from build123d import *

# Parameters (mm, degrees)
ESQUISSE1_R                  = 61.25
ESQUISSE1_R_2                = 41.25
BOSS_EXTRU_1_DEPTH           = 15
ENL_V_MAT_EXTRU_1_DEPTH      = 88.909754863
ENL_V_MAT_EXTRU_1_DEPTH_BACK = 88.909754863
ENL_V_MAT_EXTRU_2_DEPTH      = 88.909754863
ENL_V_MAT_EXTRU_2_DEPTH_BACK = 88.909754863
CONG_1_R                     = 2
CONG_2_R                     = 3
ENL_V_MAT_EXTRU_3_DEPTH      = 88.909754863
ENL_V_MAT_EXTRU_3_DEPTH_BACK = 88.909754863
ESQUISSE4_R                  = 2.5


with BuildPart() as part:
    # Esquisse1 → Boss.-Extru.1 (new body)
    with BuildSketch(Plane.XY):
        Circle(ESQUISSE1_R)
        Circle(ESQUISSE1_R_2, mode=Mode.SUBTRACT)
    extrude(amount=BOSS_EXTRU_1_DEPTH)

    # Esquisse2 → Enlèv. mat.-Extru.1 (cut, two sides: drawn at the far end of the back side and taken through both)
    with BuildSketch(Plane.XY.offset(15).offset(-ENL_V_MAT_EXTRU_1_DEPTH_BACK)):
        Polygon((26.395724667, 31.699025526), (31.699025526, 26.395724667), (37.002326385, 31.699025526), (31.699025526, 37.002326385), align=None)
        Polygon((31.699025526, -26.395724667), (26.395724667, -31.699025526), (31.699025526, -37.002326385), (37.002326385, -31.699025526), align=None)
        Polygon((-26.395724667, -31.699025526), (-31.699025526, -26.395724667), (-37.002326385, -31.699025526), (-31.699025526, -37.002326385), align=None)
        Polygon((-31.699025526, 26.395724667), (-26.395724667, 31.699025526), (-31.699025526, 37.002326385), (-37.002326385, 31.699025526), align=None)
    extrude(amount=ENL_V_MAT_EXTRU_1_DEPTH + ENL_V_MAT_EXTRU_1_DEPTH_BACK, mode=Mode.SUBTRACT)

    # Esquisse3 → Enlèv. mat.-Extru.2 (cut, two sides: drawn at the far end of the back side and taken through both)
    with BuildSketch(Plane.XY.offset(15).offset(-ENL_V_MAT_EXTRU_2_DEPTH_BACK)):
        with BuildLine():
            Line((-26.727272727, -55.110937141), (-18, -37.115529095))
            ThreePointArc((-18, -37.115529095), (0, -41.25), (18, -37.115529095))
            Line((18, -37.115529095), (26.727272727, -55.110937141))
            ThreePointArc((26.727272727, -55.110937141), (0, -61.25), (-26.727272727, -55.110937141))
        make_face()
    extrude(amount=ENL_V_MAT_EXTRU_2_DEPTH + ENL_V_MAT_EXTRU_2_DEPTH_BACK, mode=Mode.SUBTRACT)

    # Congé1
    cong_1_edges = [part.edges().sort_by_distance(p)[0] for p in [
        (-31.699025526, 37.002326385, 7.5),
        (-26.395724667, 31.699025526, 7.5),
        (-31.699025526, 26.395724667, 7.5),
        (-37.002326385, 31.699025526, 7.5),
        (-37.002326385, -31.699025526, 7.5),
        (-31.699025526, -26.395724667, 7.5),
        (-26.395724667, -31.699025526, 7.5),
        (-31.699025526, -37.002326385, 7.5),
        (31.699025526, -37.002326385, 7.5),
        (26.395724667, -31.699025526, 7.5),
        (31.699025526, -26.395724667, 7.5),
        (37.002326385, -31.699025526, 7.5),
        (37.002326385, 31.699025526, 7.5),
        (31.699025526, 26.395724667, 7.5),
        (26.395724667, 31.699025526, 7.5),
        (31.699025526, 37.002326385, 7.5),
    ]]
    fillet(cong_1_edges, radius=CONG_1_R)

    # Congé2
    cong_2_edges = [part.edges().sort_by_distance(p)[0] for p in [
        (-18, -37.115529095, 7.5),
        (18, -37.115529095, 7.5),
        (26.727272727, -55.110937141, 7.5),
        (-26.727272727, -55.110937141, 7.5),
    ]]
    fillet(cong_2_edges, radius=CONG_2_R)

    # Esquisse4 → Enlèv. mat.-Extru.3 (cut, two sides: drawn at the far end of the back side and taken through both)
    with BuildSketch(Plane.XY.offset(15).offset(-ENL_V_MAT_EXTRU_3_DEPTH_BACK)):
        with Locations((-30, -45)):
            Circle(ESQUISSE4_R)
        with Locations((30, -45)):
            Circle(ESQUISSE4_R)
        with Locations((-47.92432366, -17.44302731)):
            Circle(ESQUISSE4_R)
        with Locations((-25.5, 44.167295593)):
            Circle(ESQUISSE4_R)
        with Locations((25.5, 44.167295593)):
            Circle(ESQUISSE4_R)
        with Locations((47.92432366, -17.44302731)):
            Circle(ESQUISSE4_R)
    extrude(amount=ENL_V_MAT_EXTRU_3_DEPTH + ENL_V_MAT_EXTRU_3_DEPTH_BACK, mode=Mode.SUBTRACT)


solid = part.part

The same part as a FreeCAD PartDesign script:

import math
import FreeCAD as App
import Part
import Sketcher
from FreeCAD import Vector


def edges_at(feature, points):
    """Names of the edges that pass closest to the given points."""
    edges = feature.Shape.Edges
    near = lambda p: min(range(len(edges)), key=lambda i: edges[i].distToShape(Part.Vertex(*p))[0])
    return sorted({f"Edge{near(p) + 1}" for p in points})

doc = App.newDocument("Part")
body = doc.addObject("PartDesign::Body", "Body")

# Sketch on XY plane
sketch1 = body.newObject("Sketcher::SketchObject", "Sketch")
sketch1.AttachmentSupport = (doc.getObject("XY_Plane"), [""])
sketch1.MapMode = "FlatFace"
sketch1.addGeometry([
    Part.Circle(Vector(0, 0, 0), Vector(0, 0, 1), 61),
    Part.Circle(Vector(0, 0, 0), Vector(0, 0, 1), 41),
], False)
sketch1.addConstraint([
    Sketcher.Constraint("Coincident", 0, 3, -1, 1),
    Sketcher.Constraint("Coincident", 1, 3, -1, 1),
    Sketcher.Constraint("Diameter", 0, 122.5),
    Sketcher.Constraint("Diameter", 1, 82.5),
])
pad1 = body.newObject("PartDesign::Pad", "Pad")
pad1.Profile = sketch1
pad1.Length = 15

# Sketch on XY plane
sketch2 = body.newObject("Sketcher::SketchObject", "Sketch001")
sketch2.AttachmentSupport = (doc.getObject("XY_Plane"), [""])
sketch2.MapMode = "FlatFace"
sketch2.AttachmentOffset = App.Placement(Vector(0, 0, 15), App.Rotation())
sketch2.addGeometry([
    Part.LineSegment(Vector(26, 32, 0), Vector(32, 26, 0)),  # 0
    Part.LineSegment(Vector(32, 26, 0), Vector(37, 32, 0)),  # 1
    Part.LineSegment(Vector(37, 32, 0), Vector(32, 37, 0)),  # 2
    Part.LineSegment(Vector(32, 37, 0), Vector(26, 32, 0)),  # 3
    Part.LineSegment(Vector(32, -26, 0), Vector(26, -32, 0)),  # 4
    Part.LineSegment(Vector(26, -32, 0), Vector(32, -37, 0)),  # 5
    Part.LineSegment(Vector(32, -37, 0), Vector(37, -32, 0)),  # 6
    Part.LineSegment(Vector(37, -32, 0), Vector(32, -26, 0)),  # 7
    Part.LineSegment(Vector(-26, -32, 0), Vector(-32, -26, 0)),  # 8
    Part.LineSegment(Vector(-32, -26, 0), Vector(-37, -32, 0)),  # 9
    Part.LineSegment(Vector(-37, -32, 0), Vector(-32, -37, 0)),  # 10
    Part.LineSegment(Vector(-32, -37, 0), Vector(-26, -32, 0)),  # 11
    Part.LineSegment(Vector(-32, 26, 0), Vector(-26, 32, 0)),  # 12
    Part.LineSegment(Vector(-26, 32, 0), Vector(-32, 37, 0)),  # 13
    Part.LineSegment(Vector(-32, 37, 0), Vector(-37, 32, 0)),  # 14
    Part.LineSegment(Vector(-37, 32, 0), Vector(-32, 26, 0)),  # 15
], False)
sketch2.addConstraint([
    Sketcher.Constraint("Coincident", 0, 2, 1, 1),
    Sketcher.Constraint("Coincident", 1, 2, 2, 1),
    Sketcher.Constraint("Coincident", 2, 2, 3, 1),
    Sketcher.Constraint("Coincident", 3, 2, 0, 1),
    Sketcher.Constraint("Coincident", 4, 2, 5, 1),
    Sketcher.Constraint("Coincident", 5, 2, 6, 1),
    Sketcher.Constraint("Coincident", 6, 2, 7, 1),
    Sketcher.Constraint("Coincident", 7, 2, 4, 1),
    Sketcher.Constraint("Coincident", 8, 2, 9, 1),
    Sketcher.Constraint("Coincident", 9, 2, 10, 1),
    Sketcher.Constraint("Coincident", 10, 2, 11, 1),
    Sketcher.Constraint("Coincident", 11, 2, 8, 1),
    Sketcher.Constraint("Coincident", 12, 2, 13, 1),
    Sketcher.Constraint("Coincident", 13, 2, 14, 1),
    Sketcher.Constraint("Coincident", 14, 2, 15, 1),
    Sketcher.Constraint("Coincident", 15, 2, 12, 1),
    Sketcher.Constraint("Symmetric", 0, 2, 8, 2, -1, 1),
    Sketcher.Constraint("Symmetric", 1, 2, 9, 2, -1, 1),
    Sketcher.Constraint("Symmetric", 2, 2, 10, 2, -1, 1),
    Sketcher.Constraint("Symmetric", 3, 2, 11, 2, -1, 1),
    Sketcher.Constraint("Symmetric", 4, 2, 12, 2, -1, 1),
    Sketcher.Constraint("Symmetric", 5, 2, 13, 2, -1, 1),
    Sketcher.Constraint("Symmetric", 6, 2, 14, 2, -1, 1),
    Sketcher.Constraint("Symmetric", 7, 2, 15, 2, -1, 1),
    Sketcher.Constraint("Symmetric", 7, 2, 8, 2, -2),
    Sketcher.Constraint("Symmetric", 6, 2, 9, 2, -2),
    Sketcher.Constraint("Symmetric", 5, 2, 10, 2, -2),
    Sketcher.Constraint("Symmetric", 4, 2, 11, 2, -2),
    Sketcher.Constraint("Perpendicular", 0, 1),
    Sketcher.Constraint("Perpendicular", 1, 2),
    Sketcher.Constraint("Perpendicular", 2, 3),
    Sketcher.Constraint("Parallel", 3, 4),
    Sketcher.Constraint("Horizontal", 1, 2, 3, 2),
    Sketcher.Constraint("Distance", 0, 7.5),
    Sketcher.Constraint("DistanceY", 4, 2, 0, 2, 58.09475),
    Sketcher.Constraint("DistanceX", 8, 2, 4, 2, 58.09475),
])
pocket1 = body.newObject("PartDesign::Pocket", "Pocket")
pocket1.Profile = sketch2
pocket1.Type = "ThroughAll"
pocket1.Midplane = True

# Sketch on XY plane
sketch3 = body.newObject("Sketcher::SketchObject", "Sketch002")
sketch3.AttachmentSupport = (doc.getObject("XY_Plane"), [""])
sketch3.MapMode = "FlatFace"
sketch3.AttachmentOffset = App.Placement(Vector(0, 0, 15), App.Rotation())
sketch3.addGeometry([
    Part.LineSegment(Vector(-18, -37, 0), Vector(-27, -55, 0)),
    Part.ArcOfCircle(Part.Circle(Vector(0, 0, 0), Vector(0, 0, 1), 61), math.radians(-116), math.radians(-64)),
    Part.LineSegment(Vector(27, -55, 0), Vector(18, -37, 0)),
    Part.ArcOfCircle(Part.Circle(Vector(0, 0, 0), Vector(0, 0, 1), 41), math.radians(-116), math.radians(-64)),
], False)
sketch3.addConstraint([
    Sketcher.Constraint("Coincident", 0, 2, 1, 1),
    Sketcher.Constraint("Coincident", 1, 2, 2, 1),
    Sketcher.Constraint("Coincident", 2, 2, 3, 2),
    Sketcher.Constraint("Coincident", 3, 1, 0, 1),
    Sketcher.Constraint("Coincident", 1, 3, -1, 1),
    Sketcher.Constraint("Coincident", 3, 3, -1, 1),
    Sketcher.Constraint("Horizontal", 0, 2, 1, 2),
    Sketcher.Constraint("Horizontal", 2, 2, 3, 1),
    Sketcher.Constraint("Radius", 1, 61.25),
    Sketcher.Constraint("Radius", 3, 41.25),
    Sketcher.Constraint("DistanceX", -1, 1, 2, 2, 18.0),
    Sketcher.Constraint("DistanceY", 1, 2, 2, 2, 17.995408),
])
pocket2 = body.newObject("PartDesign::Pocket", "Pocket001")
pocket2.Profile = sketch3
pocket2.Type = "ThroughAll"
pocket2.Midplane = True
doc.recompute()

fillet = body.newObject("PartDesign::Fillet", "Fillet")
fillet.Base = (pocket2, edges_at(pocket2, [
    (-31.699, 37.002, 7.5),
    (-26.396, 31.699, 7.5),
    (-31.699, 26.396, 7.5),
    (-37.002, 31.699, 7.5),
    (-37.002, -31.699, 7.5),
    (-31.699, -26.396, 7.5),
    (-26.396, -31.699, 7.5),
    (-31.699, -37.002, 7.5),
    (31.699, -37.002, 7.5),
    (26.396, -31.699, 7.5),
    (31.699, -26.396, 7.5),
    (37.002, -31.699, 7.5),
    (37.002, 31.699, 7.5),
    (31.699, 26.396, 7.5),
    (26.396, 31.699, 7.5),
    (31.699, 37.002, 7.5),
]))
fillet.Radius = 2
doc.recompute()

fillet2 = body.newObject("PartDesign::Fillet", "Fillet001")
fillet2.Base = (fillet, edges_at(fillet, [
    (-18, -37.116, 7.5),
    (18, -37.116, 7.5),
    (26.727, -55.111, 7.5),
    (-26.727, -55.111, 7.5),
]))
fillet2.Radius = 3

# Sketch on XY plane
sketch4 = body.newObject("Sketcher::SketchObject", "Sketch003")
sketch4.AttachmentSupport = (doc.getObject("XY_Plane"), [""])
sketch4.MapMode = "FlatFace"
sketch4.AttachmentOffset = App.Placement(Vector(0, 0, 15), App.Rotation())
sketch4.addGeometry([
    Part.Circle(Vector(-30, -45, 0), Vector(0, 0, 1), 2.5),  # 0
    Part.Circle(Vector(30, -45, 0), Vector(0, 0, 1), 2.5),  # 1
    Part.Circle(Vector(-47.9, -17.4, 0), Vector(0, 0, 1), 2.5),  # 2
    Part.Circle(Vector(-25.5, 44.2, 0), Vector(0, 0, 1), 2.5),  # 3
    Part.Circle(Vector(25.5, 44.2, 0), Vector(0, 0, 1), 2.5),  # 4
    Part.Circle(Vector(47.9, -17.4, 0), Vector(0, 0, 1), 2.5),  # 5
], False)
sketch4.addConstraint([
    Sketcher.Constraint("Equal", 0, 1),
    Sketcher.Constraint("Equal", 1, 2),
    Sketcher.Constraint("Equal", 2, 3),
    Sketcher.Constraint("Equal", 3, 4),
    Sketcher.Constraint("Equal", 4, 5),
    Sketcher.Constraint("Symmetric", 0, 3, 1, 3, -2),
    Sketcher.Constraint("Symmetric", 3, 3, 4, 3, -2),
    Sketcher.Constraint("Symmetric", 2, 3, 5, 3, -2),
    Sketcher.Constraint("Diameter", 0, 5.0),
    Sketcher.Constraint("DistanceX", 0, 3, -1, 1, 30.0),
    Sketcher.Constraint("DistanceY", 0, 3, -1, 1, 45.0),
    Sketcher.Constraint("DistanceX", 3, 3, 4, 3, 51.0),
    Sketcher.Constraint("DistanceX", 2, 3, -1, 1, 47.924324),
    Sketcher.Constraint("DistanceY", 2, 3, -1, 1, 17.443027),
    Sketcher.Constraint("DistanceY", -1, 1, 3, 3, 44.167296),
])
pocket3 = body.newObject("PartDesign::Pocket", "Pocket002")
pocket3.Profile = sketch4
pocket3.Type = "ThroughAll"
pocket3.Midplane = True

doc.recompute()
